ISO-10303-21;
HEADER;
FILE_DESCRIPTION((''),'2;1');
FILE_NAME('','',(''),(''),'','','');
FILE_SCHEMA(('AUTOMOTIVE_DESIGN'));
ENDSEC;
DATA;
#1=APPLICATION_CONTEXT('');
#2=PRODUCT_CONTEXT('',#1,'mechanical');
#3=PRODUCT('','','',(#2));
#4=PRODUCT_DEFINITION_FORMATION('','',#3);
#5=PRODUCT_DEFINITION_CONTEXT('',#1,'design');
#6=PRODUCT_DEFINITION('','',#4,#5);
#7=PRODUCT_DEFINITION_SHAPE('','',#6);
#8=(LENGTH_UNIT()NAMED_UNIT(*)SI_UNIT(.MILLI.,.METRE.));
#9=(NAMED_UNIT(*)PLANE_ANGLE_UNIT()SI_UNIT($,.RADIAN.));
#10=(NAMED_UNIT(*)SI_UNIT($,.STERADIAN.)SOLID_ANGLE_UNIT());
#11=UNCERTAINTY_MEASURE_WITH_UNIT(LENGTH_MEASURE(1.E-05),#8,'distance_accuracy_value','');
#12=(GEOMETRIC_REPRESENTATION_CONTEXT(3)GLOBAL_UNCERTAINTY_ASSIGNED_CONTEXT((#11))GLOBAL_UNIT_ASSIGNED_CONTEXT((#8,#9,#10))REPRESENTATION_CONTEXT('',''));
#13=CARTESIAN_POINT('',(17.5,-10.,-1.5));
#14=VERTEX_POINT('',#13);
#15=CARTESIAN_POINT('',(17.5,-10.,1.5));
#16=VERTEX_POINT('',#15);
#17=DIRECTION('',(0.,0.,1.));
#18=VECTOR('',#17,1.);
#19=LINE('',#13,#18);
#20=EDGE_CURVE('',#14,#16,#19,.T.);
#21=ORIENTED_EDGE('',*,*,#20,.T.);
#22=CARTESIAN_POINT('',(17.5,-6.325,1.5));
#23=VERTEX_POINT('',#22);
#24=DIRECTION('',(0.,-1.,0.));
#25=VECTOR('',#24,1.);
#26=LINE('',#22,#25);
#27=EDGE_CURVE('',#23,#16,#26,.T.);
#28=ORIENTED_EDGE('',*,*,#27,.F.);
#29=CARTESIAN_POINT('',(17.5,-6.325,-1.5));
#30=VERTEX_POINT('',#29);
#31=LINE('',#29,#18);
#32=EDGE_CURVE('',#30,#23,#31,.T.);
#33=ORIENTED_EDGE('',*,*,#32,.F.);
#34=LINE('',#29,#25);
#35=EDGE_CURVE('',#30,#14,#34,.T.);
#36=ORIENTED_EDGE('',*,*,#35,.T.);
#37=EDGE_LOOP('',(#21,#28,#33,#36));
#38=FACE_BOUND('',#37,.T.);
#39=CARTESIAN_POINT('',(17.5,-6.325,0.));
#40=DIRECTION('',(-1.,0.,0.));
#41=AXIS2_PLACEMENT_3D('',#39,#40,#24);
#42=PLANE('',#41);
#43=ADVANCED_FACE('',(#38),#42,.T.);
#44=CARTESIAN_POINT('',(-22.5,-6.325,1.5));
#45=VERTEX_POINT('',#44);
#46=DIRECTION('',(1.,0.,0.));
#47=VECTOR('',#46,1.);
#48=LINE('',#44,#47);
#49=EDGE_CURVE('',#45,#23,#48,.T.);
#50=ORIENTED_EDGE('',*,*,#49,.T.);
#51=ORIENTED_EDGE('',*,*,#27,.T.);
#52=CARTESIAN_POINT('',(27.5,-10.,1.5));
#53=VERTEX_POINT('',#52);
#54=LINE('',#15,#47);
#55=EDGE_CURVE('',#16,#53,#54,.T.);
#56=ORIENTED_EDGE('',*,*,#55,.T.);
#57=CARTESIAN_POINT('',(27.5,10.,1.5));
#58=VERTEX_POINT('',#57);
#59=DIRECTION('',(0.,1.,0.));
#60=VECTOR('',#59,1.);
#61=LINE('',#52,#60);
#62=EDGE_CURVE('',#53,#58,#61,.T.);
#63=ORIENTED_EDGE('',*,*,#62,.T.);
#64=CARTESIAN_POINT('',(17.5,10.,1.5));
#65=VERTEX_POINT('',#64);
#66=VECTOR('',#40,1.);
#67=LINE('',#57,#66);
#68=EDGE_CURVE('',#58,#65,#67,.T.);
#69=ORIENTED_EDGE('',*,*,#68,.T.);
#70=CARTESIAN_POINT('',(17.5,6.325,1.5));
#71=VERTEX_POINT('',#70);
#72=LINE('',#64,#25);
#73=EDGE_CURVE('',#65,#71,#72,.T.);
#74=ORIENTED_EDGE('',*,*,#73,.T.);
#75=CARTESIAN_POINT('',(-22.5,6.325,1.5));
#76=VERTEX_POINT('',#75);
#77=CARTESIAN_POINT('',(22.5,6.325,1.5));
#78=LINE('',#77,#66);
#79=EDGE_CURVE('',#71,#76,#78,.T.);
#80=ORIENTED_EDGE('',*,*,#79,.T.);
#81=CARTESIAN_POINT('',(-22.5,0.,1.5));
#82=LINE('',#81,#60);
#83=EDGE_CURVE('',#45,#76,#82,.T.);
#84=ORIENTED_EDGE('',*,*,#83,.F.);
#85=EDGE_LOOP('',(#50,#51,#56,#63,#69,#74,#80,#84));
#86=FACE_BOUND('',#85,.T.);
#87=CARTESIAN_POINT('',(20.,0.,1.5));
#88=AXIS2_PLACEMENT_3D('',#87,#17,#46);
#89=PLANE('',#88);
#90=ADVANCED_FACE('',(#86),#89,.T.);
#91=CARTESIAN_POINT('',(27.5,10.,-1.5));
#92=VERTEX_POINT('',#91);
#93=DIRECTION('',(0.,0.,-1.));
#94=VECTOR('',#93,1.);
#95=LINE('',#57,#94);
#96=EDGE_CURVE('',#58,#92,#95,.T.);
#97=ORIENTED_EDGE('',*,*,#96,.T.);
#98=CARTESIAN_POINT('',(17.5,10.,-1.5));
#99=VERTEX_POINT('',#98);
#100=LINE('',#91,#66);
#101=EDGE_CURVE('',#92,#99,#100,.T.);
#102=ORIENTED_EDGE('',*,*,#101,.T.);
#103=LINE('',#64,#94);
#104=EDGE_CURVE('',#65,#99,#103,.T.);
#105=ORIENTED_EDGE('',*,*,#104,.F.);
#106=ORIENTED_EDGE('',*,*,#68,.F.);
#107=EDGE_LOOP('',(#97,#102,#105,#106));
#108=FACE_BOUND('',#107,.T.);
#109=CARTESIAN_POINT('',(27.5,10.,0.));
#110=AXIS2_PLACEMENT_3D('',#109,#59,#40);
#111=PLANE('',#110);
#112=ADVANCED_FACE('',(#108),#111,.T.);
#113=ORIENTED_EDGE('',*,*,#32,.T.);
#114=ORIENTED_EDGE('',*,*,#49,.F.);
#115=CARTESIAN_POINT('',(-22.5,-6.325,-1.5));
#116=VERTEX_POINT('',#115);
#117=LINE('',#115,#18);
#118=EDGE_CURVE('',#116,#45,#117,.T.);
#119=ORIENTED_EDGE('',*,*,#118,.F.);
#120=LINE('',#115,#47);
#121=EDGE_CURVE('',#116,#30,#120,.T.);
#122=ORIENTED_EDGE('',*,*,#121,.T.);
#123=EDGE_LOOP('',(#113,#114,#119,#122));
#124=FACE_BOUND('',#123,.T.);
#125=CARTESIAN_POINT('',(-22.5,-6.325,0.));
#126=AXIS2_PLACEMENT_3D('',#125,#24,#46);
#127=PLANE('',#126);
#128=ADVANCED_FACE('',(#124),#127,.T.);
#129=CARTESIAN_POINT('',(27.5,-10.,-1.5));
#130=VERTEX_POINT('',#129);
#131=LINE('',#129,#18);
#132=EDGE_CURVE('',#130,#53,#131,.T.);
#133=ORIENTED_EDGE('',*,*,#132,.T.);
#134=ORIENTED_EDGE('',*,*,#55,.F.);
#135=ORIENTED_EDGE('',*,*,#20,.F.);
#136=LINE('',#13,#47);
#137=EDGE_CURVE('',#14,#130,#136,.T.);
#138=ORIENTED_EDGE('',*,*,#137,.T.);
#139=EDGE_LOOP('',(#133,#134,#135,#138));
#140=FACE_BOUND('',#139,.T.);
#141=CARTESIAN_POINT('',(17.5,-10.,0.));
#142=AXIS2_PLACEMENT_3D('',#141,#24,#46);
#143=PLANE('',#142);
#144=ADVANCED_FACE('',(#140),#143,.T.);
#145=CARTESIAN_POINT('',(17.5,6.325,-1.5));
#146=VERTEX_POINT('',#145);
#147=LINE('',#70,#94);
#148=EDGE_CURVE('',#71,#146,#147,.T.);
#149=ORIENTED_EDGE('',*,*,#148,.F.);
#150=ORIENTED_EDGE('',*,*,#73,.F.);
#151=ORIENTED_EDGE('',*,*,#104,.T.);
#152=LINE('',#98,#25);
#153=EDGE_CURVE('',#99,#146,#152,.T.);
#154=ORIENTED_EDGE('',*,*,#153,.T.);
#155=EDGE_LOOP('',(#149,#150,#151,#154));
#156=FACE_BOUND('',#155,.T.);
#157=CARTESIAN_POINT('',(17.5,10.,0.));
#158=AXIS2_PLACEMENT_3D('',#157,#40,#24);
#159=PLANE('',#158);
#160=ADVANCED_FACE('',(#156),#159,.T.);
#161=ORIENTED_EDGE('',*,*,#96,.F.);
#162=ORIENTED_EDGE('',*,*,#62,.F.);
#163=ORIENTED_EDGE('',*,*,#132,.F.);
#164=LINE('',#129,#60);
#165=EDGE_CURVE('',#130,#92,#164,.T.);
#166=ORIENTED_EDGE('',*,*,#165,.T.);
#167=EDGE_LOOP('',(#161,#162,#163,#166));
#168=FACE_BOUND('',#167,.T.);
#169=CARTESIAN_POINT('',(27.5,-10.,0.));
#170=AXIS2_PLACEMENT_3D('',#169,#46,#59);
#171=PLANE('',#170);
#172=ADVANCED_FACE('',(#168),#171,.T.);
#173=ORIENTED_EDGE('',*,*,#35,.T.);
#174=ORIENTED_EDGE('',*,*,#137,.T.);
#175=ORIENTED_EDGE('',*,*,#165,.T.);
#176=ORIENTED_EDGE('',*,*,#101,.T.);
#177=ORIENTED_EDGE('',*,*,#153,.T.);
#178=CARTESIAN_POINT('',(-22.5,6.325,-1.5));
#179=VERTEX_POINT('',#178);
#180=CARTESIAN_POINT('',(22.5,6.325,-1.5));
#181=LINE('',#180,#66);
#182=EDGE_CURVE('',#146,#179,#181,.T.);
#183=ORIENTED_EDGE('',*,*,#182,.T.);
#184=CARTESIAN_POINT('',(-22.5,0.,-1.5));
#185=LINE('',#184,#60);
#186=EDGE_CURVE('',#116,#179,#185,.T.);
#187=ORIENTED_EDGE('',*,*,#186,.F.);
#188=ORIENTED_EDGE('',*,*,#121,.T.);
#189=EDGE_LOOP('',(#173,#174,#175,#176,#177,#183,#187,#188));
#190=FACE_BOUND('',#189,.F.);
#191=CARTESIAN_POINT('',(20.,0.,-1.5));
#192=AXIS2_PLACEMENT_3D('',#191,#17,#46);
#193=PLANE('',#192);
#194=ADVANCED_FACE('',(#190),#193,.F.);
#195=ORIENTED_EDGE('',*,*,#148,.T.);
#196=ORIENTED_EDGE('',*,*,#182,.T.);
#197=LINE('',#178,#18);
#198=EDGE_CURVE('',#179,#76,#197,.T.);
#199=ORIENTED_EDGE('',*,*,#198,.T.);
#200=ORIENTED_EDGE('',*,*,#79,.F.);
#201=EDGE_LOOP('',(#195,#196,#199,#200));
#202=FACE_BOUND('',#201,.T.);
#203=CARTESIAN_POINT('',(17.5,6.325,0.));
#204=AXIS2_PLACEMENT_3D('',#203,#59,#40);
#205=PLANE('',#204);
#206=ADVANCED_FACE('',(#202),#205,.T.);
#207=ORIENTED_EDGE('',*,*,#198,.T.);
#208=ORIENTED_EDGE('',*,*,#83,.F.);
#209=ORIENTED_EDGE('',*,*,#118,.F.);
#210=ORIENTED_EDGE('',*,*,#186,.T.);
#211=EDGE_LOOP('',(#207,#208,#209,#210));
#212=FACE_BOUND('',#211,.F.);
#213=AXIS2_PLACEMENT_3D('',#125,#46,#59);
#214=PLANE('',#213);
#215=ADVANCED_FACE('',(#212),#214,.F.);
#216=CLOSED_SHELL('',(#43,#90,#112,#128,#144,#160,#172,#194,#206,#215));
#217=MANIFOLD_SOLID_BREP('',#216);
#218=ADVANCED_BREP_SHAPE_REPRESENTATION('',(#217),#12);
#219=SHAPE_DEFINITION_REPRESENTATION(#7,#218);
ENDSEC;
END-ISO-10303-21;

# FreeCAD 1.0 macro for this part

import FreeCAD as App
import Part
import Sketcher

doc = App.newDocument("Part")
params = doc.addObject("Spreadsheet::Sheet", "Params")
for row, (alias, value) in enumerate([
    ("sketch1_width", "40 mm"),
    ("sketch1_width2", "10 mm"),
    ("sketch1_height", "20 mm"),
    ("sketch1_height2", "12.65 mm"),
    ("pad1_length", "3 mm"),
], start=1):
    params.set(f"A{row}", alias)
    params.set(f"B{row}", "=" + value)
    params.setAlias(f"B{row}", alias)

body = doc.addObject("PartDesign::Body", "Body")

sketch1 = body.newObject("Sketcher::SketchObject", "Sketch")
sketch1.AttachmentSupport = (doc.getObject("XY_Plane"), [""])
sketch1.MapMode = "FlatFace"
sketch1.addGeometry(Part.LineSegment(App.Vector(17.5, 6.325, 0), App.Vector(-22.5, 6.325, 0)), False)
sketch1.addGeometry(Part.LineSegment(App.Vector(-22.5, 6.325, 0), App.Vector(-22.5, -6.325, 0)), False)
sketch1.addGeometry(Part.LineSegment(App.Vector(-22.5, -6.325, 0), App.Vector(17.5, -6.325, 0)), False)
sketch1.addGeometry(Part.LineSegment(App.Vector(17.5, -6.325, 0), App.Vector(17.5, -10, 0)), False)
sketch1.addGeometry(Part.LineSegment(App.Vector(17.5, -10, 0), App.Vector(27.5, -10, 0)), False)
sketch1.addGeometry(Part.LineSegment(App.Vector(27.5, -10, 0), App.Vector(27.5, 10, 0)), False)
sketch1.addGeometry(Part.LineSegment(App.Vector(27.5, 10, 0), App.Vector(17.5, 10, 0)), False)
sketch1.addGeometry(Part.LineSegment(App.Vector(17.5, 10, 0), App.Vector(17.5, 6.325, 0)), False)
sketch1.addConstraint(Sketcher.Constraint("Coincident", 0, 2, 1, 1))
sketch1.addConstraint(Sketcher.Constraint("Coincident", 1, 2, 2, 1))
sketch1.addConstraint(Sketcher.Constraint("Coincident", 2, 2, 3, 1))
sketch1.addConstraint(Sketcher.Constraint("Coincident", 3, 2, 4, 1))
sketch1.addConstraint(Sketcher.Constraint("Coincident", 4, 2, 5, 1))
sketch1.addConstraint(Sketcher.Constraint("Coincident", 5, 2, 6, 1))
sketch1.addConstraint(Sketcher.Constraint("Coincident", 6, 2, 7, 1))
sketch1.addConstraint(Sketcher.Constraint("Coincident", 7, 2, 0, 1))
sketch1.addConstraint(Sketcher.Constraint("Horizontal", 0))
sketch1.addConstraint(Sketcher.Constraint("Vertical", 1))
sketch1.addConstraint(Sketcher.Constraint("Horizontal", 2))
sketch1.addConstraint(Sketcher.Constraint("Vertical", 3))
sketch1.addConstraint(Sketcher.Constraint("Horizontal", 4))
sketch1.addConstraint(Sketcher.Constraint("Vertical", 5))
sketch1.addConstraint(Sketcher.Constraint("Horizontal", 6))
sketch1.addConstraint(Sketcher.Constraint("Vertical", 7))
sketch1.addConstraint(Sketcher.Constraint("Symmetric", 3, 2, 6, 2, -1))
sketch1.addConstraint(Sketcher.Constraint("Equal", 3, 7))
sketch1.addConstraint(Sketcher.Constraint("DistanceX", 0, 2, 0, 1, 40.0))
sketch1.addConstraint(Sketcher.Constraint("DistanceX", 4, 1, 4, 2, 10.0))
sketch1.addConstraint(Sketcher.Constraint("DistanceY", 5, 1, 5, 2, 20.0))
sketch1.addConstraint(Sketcher.Constraint("DistanceY", 1, 2, 1, 1, 12.65))
sketch1.addConstraint(Sketcher.Constraint("DistanceX", 0, 2, -1, 1, 22.5))
sketch1.setExpression("Constraints[18]", "Params.sketch1_width")
sketch1.setExpression("Constraints[19]", "Params.sketch1_width2")
sketch1.setExpression("Constraints[20]", "Params.sketch1_height")
sketch1.setExpression("Constraints[21]", "Params.sketch1_height2")
pad1 = body.newObject("PartDesign::Pad", "Pad")
pad1.Profile = sketch1
pad1.setExpression("Length", "Params.pad1_length")
pad1.Midplane = True

doc.recompute()
